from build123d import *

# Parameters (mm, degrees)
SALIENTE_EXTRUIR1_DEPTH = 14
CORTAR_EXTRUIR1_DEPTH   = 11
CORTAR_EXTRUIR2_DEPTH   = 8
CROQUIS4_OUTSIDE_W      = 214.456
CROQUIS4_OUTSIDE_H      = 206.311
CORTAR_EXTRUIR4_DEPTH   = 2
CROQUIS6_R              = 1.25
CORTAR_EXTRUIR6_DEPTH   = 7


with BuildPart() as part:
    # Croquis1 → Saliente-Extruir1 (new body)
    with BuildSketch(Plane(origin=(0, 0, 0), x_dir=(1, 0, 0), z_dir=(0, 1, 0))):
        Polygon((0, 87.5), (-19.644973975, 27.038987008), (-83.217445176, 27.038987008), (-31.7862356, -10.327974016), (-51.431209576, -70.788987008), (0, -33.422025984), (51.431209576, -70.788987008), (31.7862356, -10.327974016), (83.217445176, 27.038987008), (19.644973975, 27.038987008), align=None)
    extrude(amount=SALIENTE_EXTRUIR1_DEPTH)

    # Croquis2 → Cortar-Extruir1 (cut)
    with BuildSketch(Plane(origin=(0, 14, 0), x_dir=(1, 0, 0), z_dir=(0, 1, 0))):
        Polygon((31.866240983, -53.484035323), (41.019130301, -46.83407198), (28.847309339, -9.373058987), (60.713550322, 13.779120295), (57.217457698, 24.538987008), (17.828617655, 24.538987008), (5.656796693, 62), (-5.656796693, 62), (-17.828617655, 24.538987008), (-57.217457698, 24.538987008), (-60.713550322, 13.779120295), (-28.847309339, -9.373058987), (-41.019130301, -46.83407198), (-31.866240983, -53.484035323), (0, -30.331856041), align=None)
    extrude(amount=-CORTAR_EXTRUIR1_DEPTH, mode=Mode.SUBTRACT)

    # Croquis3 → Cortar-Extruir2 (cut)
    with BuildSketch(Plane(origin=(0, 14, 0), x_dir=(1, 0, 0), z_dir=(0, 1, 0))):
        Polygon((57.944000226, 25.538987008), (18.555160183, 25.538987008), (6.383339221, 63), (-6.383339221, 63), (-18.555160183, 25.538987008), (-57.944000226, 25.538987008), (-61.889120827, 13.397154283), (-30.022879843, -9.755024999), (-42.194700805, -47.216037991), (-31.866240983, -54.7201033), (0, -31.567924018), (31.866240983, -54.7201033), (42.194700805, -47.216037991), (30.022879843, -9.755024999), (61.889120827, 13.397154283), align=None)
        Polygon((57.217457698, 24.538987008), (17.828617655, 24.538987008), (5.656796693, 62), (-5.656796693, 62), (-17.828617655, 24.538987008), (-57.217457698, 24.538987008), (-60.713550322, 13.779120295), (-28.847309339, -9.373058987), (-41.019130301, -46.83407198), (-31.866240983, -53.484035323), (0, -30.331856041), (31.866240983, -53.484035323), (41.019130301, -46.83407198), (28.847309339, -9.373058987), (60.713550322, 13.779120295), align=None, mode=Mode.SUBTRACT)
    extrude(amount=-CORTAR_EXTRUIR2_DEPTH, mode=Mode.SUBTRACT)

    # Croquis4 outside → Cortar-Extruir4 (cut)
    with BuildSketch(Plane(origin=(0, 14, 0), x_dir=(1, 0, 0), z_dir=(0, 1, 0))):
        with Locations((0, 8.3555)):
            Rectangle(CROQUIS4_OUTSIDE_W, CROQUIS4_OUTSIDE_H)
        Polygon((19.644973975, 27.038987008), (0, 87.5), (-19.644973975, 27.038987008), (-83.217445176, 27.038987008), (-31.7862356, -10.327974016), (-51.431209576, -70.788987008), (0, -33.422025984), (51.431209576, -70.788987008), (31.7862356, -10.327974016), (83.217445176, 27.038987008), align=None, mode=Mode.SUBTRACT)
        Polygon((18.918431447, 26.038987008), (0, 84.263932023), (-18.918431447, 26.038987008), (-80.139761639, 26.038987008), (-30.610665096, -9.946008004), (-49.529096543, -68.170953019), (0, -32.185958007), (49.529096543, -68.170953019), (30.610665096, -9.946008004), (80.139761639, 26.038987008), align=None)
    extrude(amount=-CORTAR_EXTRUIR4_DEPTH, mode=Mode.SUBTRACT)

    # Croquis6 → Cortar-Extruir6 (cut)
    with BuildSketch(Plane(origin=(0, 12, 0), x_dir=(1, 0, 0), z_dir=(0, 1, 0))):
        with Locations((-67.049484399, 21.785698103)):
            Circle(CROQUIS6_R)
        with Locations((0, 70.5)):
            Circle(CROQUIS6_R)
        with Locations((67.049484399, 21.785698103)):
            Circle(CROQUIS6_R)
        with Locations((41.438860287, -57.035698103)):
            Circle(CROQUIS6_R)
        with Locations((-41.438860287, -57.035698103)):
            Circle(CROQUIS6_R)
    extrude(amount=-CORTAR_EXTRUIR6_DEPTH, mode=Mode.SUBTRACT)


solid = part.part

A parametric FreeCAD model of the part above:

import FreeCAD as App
import Part
import Sketcher
from FreeCAD import Vector
Q = App.Units.Quantity

doc = App.newDocument("Part")
body = doc.addObject("PartDesign::Body", "Body")

# Sketch on XZ plane
sketch1 = body.newObject("Sketcher::SketchObject", "Sketch")
sketch1.AttachmentSupport = (doc.getObject("XZ_Plane"), [""])
sketch1.MapMode = "FlatFace"
sketch1.addGeometry([
    Part.LineSegment(Vector(0, -87.5, 0), Vector(-19.644974, -27.038987, 0)),  # 0
    Part.LineSegment(Vector(-19.644974, -27.038987, 0), Vector(-83.217445, -27.038987, 0)),  # 1
    Part.LineSegment(Vector(-83.217445, -27.038987, 0), Vector(-31.786236, 10.327974, 0)),  # 2
    Part.LineSegment(Vector(-31.786236, 10.327974, 0), Vector(-51.43121, 70.788987, 0)),  # 3
    Part.LineSegment(Vector(-51.43121, 70.788987, 0), Vector(0, 33.422026, 0)),  # 4
    Part.LineSegment(Vector(0, 33.422026, 0), Vector(51.43121, 70.788987, 0)),  # 5
    Part.LineSegment(Vector(51.43121, 70.788987, 0), Vector(31.786236, 10.327974, 0)),  # 6
    Part.LineSegment(Vector(31.786236, 10.327974, 0), Vector(83.217445, -27.038987, 0)),  # 7
    Part.LineSegment(Vector(83.217445, -27.038987, 0), Vector(19.644974, -27.038987, 0)),  # 8
    Part.LineSegment(Vector(19.644974, -27.038987, 0), Vector(0, -87.5, 0)),  # 9
], False)
sketch1.addConstraint([
    Sketcher.Constraint("Coincident", 0, 2, 1, 1),
    Sketcher.Constraint("Coincident", 1, 2, 2, 1),
    Sketcher.Constraint("Coincident", 2, 2, 3, 1),
    Sketcher.Constraint("Coincident", 3, 2, 4, 1),
    Sketcher.Constraint("Coincident", 4, 2, 5, 1),
    Sketcher.Constraint("Coincident", 5, 2, 6, 1),
    Sketcher.Constraint("Coincident", 6, 2, 7, 1),
    Sketcher.Constraint("Coincident", 7, 2, 8, 1),
    Sketcher.Constraint("Coincident", 8, 2, 9, 1),
    Sketcher.Constraint("Coincident", 9, 2, 0, 1),
    Sketcher.Constraint("Horizontal", 1),
    Sketcher.Constraint("Horizontal", 8),
    Sketcher.Constraint("Symmetric", 3, 2, 5, 2, -2),
    Sketcher.Constraint("Symmetric", 2, 2, 6, 2, -2),
    Sketcher.Constraint("Symmetric", 1, 2, 7, 2, -2),
    Sketcher.Constraint("PointOnObject", 4, 2, -2),
    Sketcher.Constraint("PointOnObject", 9, 2, -2),
    Sketcher.Constraint("Parallel", 0, 3),
    Sketcher.Constraint("Parallel", 2, 5),
    Sketcher.Constraint("Parallel", 6, 9),
    Sketcher.Constraint("Equal", 0, 2),
    Sketcher.Constraint("Equal", 2, 3),
    Sketcher.Constraint("Equal", 3, 4),
    Sketcher.Constraint("Angle", 0, Q("108 deg")),
    Sketcher.Constraint("Angle", 2, Q("36 deg")),
    Sketcher.Constraint("DistanceY", 9, 2, -1, 1, Q("87.5 mm")),
    Sketcher.Constraint("DistanceX", 1, 2, 1, 1, Q("63.572471 mm")),
])
pad1 = body.newObject("PartDesign::Pad", "Pad")
pad1.Profile = sketch1
pad1.Length = 14
pad1.Reversed = True

# Sketch on XZ plane
sketch2 = body.newObject("Sketcher::SketchObject", "Sketch001")
sketch2.AttachmentSupport = (doc.getObject("XZ_Plane"), [""])
sketch2.MapMode = "FlatFace"
sketch2.AttachmentOffset = App.Placement(Vector(0, 0, -14), App.Rotation())
sketch2.addGeometry([
    Part.LineSegment(Vector(31.866241, 53.484035, 0), Vector(41.01913, 46.834072, 0)),  # 0
    Part.LineSegment(Vector(41.01913, 46.834072, 0), Vector(28.847309, 9.373059, 0)),  # 1
    Part.LineSegment(Vector(28.847309, 9.373059, 0), Vector(60.71355, -13.77912, 0)),  # 2
    Part.LineSegment(Vector(60.71355, -13.77912, 0), Vector(57.217458, -24.538987, 0)),  # 3
    Part.LineSegment(Vector(57.217458, -24.538987, 0), Vector(17.828618, -24.538987, 0)),  # 4
    Part.LineSegment(Vector(17.828618, -24.538987, 0), Vector(5.656797, -62, 0)),  # 5
    Part.LineSegment(Vector(5.656797, -62, 0), Vector(-5.656797, -62, 0)),  # 6
    Part.LineSegment(Vector(-5.656797, -62, 0), Vector(-17.828618, -24.538987, 0)),  # 7
    Part.LineSegment(Vector(-17.828618, -24.538987, 0), Vector(-57.217458, -24.538987, 0)),  # 8
    Part.LineSegment(Vector(-57.217458, -24.538987, 0), Vector(-60.71355, -13.77912, 0)),  # 9
    Part.LineSegment(Vector(-60.71355, -13.77912, 0), Vector(-28.847309, 9.373059, 0)),  # 10
    Part.LineSegment(Vector(-28.847309, 9.373059, 0), Vector(-41.01913, 46.834072, 0)),  # 11
    Part.LineSegment(Vector(-41.01913, 46.834072, 0), Vector(-31.866241, 53.484035, 0)),  # 12
    Part.LineSegment(Vector(-31.866241, 53.484035, 0), Vector(0, 30.331856, 0)),  # 13
    Part.LineSegment(Vector(0, 30.331856, 0), Vector(31.866241, 53.484035, 0)),  # 14
], False)
sketch2.addConstraint([
    Sketcher.Constraint("Coincident", 0, 2, 1, 1),
    Sketcher.Constraint("Coincident", 1, 2, 2, 1),
    Sketcher.Constraint("Coincident", 2, 2, 3, 1),
    Sketcher.Constraint("Coincident", 3, 2, 4, 1),
    Sketcher.Constraint("Coincident", 4, 2, 5, 1),
    Sketcher.Constraint("Coincident", 5, 2, 6, 1),
    Sketcher.Constraint("Coincident", 6, 2, 7, 1),
    Sketcher.Constraint("Coincident", 7, 2, 8, 1),
    Sketcher.Constraint("Coincident", 8, 2, 9, 1),
    Sketcher.Constraint("Coincident", 9, 2, 10, 1),
    Sketcher.Constraint("Coincident", 10, 2, 11, 1),
    Sketcher.Constraint("Coincident", 11, 2, 12, 1),
    Sketcher.Constraint("Coincident", 12, 2, 13, 1),
    Sketcher.Constraint("Coincident", 13, 2, 14, 1),
    Sketcher.Constraint("Coincident", 14, 2, 0, 1),
    Sketcher.Constraint("Horizontal", 4),
    Sketcher.Constraint("Horizontal", 6),
    Sketcher.Constraint("Horizontal", 8),
    Sketcher.Constraint("Symmetric", 4, 2, 7, 2, -2),
    Sketcher.Constraint("Symmetric", 2, 2, 9, 2, -2),
    Sketcher.Constraint("Symmetric", 1, 2, 10, 2, -2),
    Sketcher.Constraint("Symmetric", 0, 2, 11, 2, -2),
    Sketcher.Constraint("Symmetric", 12, 2, 14, 2, -2),
    Sketcher.Constraint("PointOnObject", 13, 2, -2),
    Sketcher.Constraint("Parallel", 0, 2),
    Sketcher.Constraint("Parallel", 1, 3),
    Sketcher.Constraint("Parallel", 3, 5),
    Sketcher.Constraint("Parallel", 7, 9),
    Sketcher.Constraint("Parallel", 9, 11),
    Sketcher.Constraint("Parallel", 2, 13),
    Sketcher.Constraint("Equal", 1, 2),
    Sketcher.Constraint("Equal", 0, 3),
    Sketcher.Constraint("Equal", 2, 5),
    Sketcher.Constraint("Equal", 11, 13),
    Sketcher.Constraint("Angle", 0, Q("-36 deg")),
    Sketcher.Constraint("Angle", 1, Q("-108 deg")),
    Sketcher.Constraint("DistanceY", 5, 2, -1, 1, Q("62 mm")),
    Sketcher.Constraint("DistanceX", 4, 2, 4, 1, Q("39.38884 mm")),
    Sketcher.Constraint("Distance", 1, Q("39.38884 mm")),
    Sketcher.Constraint("DistanceX", 6, 2, 6, 1, Q("11.313593 mm")),
])
pocket1 = body.newObject("PartDesign::Pocket", "Pocket")
pocket1.Profile = sketch2
pocket1.Length = 11
pocket1.Reversed = True

# Sketch on XZ plane
sketch3 = body.newObject("Sketcher::SketchObject", "Sketch002")
sketch3.AttachmentSupport = (doc.getObject("XZ_Plane"), [""])
sketch3.MapMode = "FlatFace"
sketch3.AttachmentOffset = App.Placement(Vector(0, 0, -14), App.Rotation())
sketch3.addGeometry([
    Part.LineSegment(Vector(57.944, -25.538987, 0), Vector(18.55516, -25.538987, 0)),  # 0
    Part.LineSegment(Vector(18.55516, -25.538987, 0), Vector(6.383339, -63, 0)),  # 1
    Part.LineSegment(Vector(6.383339, -63, 0), Vector(-6.383339, -63, 0)),  # 2
    Part.LineSegment(Vector(-6.383339, -63, 0), Vector(-18.55516, -25.538987, 0)),  # 3
    Part.LineSegment(Vector(-18.55516, -25.538987, 0), Vector(-57.944, -25.538987, 0)),  # 4
    Part.LineSegment(Vector(-57.944, -25.538987, 0), Vector(-61.889121, -13.397154, 0)),  # 5
    Part.LineSegment(Vector(-61.889121, -13.397154, 0), Vector(-30.02288, 9.755025, 0)),  # 6
    Part.LineSegment(Vector(-30.02288, 9.755025, 0), Vector(-42.194701, 47.216038, 0)),  # 7
    Part.LineSegment(Vector(-42.194701, 47.216038, 0), Vector(-31.866241, 54.720103, 0)),  # 8
    Part.LineSegment(Vector(-31.866241, 54.720103, 0), Vector(0, 31.567924, 0)),  # 9
    Part.LineSegment(Vector(0, 31.567924, 0), Vector(31.866241, 54.720103, 0)),  # 10
    Part.LineSegment(Vector(31.866241, 54.720103, 0), Vector(42.194701, 47.216038, 0)),  # 11
    Part.LineSegment(Vector(42.194701, 47.216038, 0), Vector(30.02288, 9.755025, 0)),  # 12
    Part.LineSegment(Vector(30.02288, 9.755025, 0), Vector(61.889121, -13.397154, 0)),  # 13
    Part.LineSegment(Vector(61.889121, -13.397154, 0), Vector(57.944, -25.538987, 0)),  # 14
    Part.LineSegment(Vector(17.828618, -24.538987, 0), Vector(57.217458, -24.538987, 0)),  # 15
    Part.LineSegment(Vector(57.217458, -24.538987, 0), Vector(60.71355, -13.77912, 0)),  # 16
    Part.LineSegment(Vector(60.71355, -13.77912, 0), Vector(28.847309, 9.373059, 0)),  # 17
    Part.LineSegment(Vector(28.847309, 9.373059, 0), Vector(41.01913, 46.834072, 0)),  # 18
    Part.LineSegment(Vector(41.01913, 46.834072, 0), Vector(31.866241, 53.484035, 0)),  # 19
    Part.LineSegment(Vector(31.866241, 53.484035, 0), Vector(0, 30.331856, 0)),  # 20
    Part.LineSegment(Vector(0, 30.331856, 0), Vector(-31.866241, 53.484035, 0)),  # 21
    Part.LineSegment(Vector(-31.866241, 53.484035, 0), Vector(-41.01913, 46.834072, 0)),  # 22
    Part.LineSegment(Vector(-41.01913, 46.834072, 0), Vector(-28.847309, 9.373059, 0)),  # 23
    Part.LineSegment(Vector(-28.847309, 9.373059, 0), Vector(-60.71355, -13.77912, 0)),  # 24
    Part.LineSegment(Vector(-60.71355, -13.77912, 0), Vector(-57.217458, -24.538987, 0)),  # 25
    Part.LineSegment(Vector(-57.217458, -24.538987, 0), Vector(-17.828618, -24.538987, 0)),  # 26
    Part.LineSegment(Vector(-17.828618, -24.538987, 0), Vector(-5.656797, -62, 0)),  # 27
    Part.LineSegment(Vector(-5.656797, -62, 0), Vector(5.656797, -62, 0)),  # 28
    Part.LineSegment(Vector(5.656797, -62, 0), Vector(17.828618, -24.538987, 0)),  # 29
], False)
sketch3.addConstraint([
    Sketcher.Constraint("Coincident", 0, 2, 1, 1),
    Sketcher.Constraint("Coincident", 1, 2, 2, 1),
    Sketcher.Constraint("Coincident", 2, 2, 3, 1),
    Sketcher.Constraint("Coincident", 3, 2, 4, 1),
    Sketcher.Constraint("Coincident", 4, 2, 5, 1),
    Sketcher.Constraint("Coincident", 5, 2, 6, 1),
    Sketcher.Constraint("Coincident", 6, 2, 7, 1),
    Sketcher.Constraint("Coincident", 7, 2, 8, 1),
    Sketcher.Constraint("Coincident", 8, 2, 9, 1),
    Sketcher.Constraint("Coincident", 9, 2, 10, 1),
    Sketcher.Constraint("Coincident", 10, 2, 11, 1),
    Sketcher.Constraint("Coincident", 11, 2, 12, 1),
    Sketcher.Constraint("Coincident", 12, 2, 13, 1),
    Sketcher.Constraint("Coincident", 13, 2, 14, 1),
    Sketcher.Constraint("Coincident", 14, 2, 0, 1),
    Sketcher.Constraint("Coincident", 15, 2, 16, 1),
    Sketcher.Constraint("Coincident", 16, 2, 17, 1),
    Sketcher.Constraint("Coincident", 17, 2, 18, 1),
    Sketcher.Constraint("Coincident", 18, 2, 19, 1),
    Sketcher.Constraint("Coincident", 19, 2, 20, 1),
    Sketcher.Constraint("Coincident", 20, 2, 21, 1),
    Sketcher.Constraint("Coincident", 21, 2, 22, 1),
    Sketcher.Constraint("Coincident", 22, 2, 23, 1),
    Sketcher.Constraint("Coincident", 23, 2, 24, 1),
    Sketcher.Constraint("Coincident", 24, 2, 25, 1),
    Sketcher.Constraint("Coincident", 25, 2, 26, 1),
    Sketcher.Constraint("Coincident", 26, 2, 27, 1),
    Sketcher.Constraint("Coincident", 27, 2, 28, 1),
    Sketcher.Constraint("Coincident", 28, 2, 29, 1),
    Sketcher.Constraint("Coincident", 29, 2, 15, 1),
    Sketcher.Constraint("Horizontal", 0),
    Sketcher.Constraint("Horizontal", 2),
    Sketcher.Constraint("Horizontal", 4),
    Sketcher.Constraint("Horizontal", 15),
    Sketcher.Constraint("Horizontal", 26),
    Sketcher.Constraint("Horizontal", 28),
    Sketcher.Constraint("Symmetric", 0, 2, 3, 2, -2),
    Sketcher.Constraint("Symmetric", 8, 2, 10, 2, -2),
    Sketcher.Constraint("Symmetric", 7, 2, 11, 2, -2),
    Sketcher.Constraint("Symmetric", 6, 2, 12, 2, -2),
    Sketcher.Constraint("Symmetric", 5, 2, 13, 2, -2),
    Sketcher.Constraint("Symmetric", 19, 2, 21, 2, -2),
    Sketcher.Constraint("Symmetric", 18, 2, 22, 2, -2),
    Sketcher.Constraint("Symmetric", 17, 2, 23, 2, -2),
    Sketcher.Constraint("Symmetric", 16, 2, 24, 2, -2),
    Sketcher.Constraint("Symmetric", 15, 2, 25, 2, -2),
    Sketcher.Constraint("PointOnObject", 9, 2, -2),
    Sketcher.Constraint("PointOnObject", 20, 2, -2),
    Sketcher.Constraint("Parallel", 3, 5),
    Sketcher.Constraint("Parallel", 5, 7),
    Sketcher.Constraint("Parallel", 6, 8),
    Sketcher.Constraint("Parallel", 8, 10),
    Sketcher.Constraint("Parallel", 1, 12),
    Sketcher.Constraint("Parallel", 12, 14),
    Sketcher.Constraint("Parallel", 14, 16),
    Sketcher.Constraint("Parallel", 13, 17),
    Sketcher.Constraint("Parallel", 16, 18),
    Sketcher.Constraint("Parallel", 17, 19),
    Sketcher.Constraint("Parallel", 10, 20),
    Sketcher.Constraint("Parallel", 25, 27),
    Sketcher.Constraint("Parallel", 18, 29),
    Sketcher.Constraint("Vertical", 10, 2, 19, 2),
    Sketcher.Constraint("Equal", 4, 15),
    Sketcher.Constraint("Equal", 15, 26),
    Sketcher.Constraint("Equal", 3, 6),
    Sketcher.Constraint("Equal", 6, 7),
    Sketcher.Constraint("Equal", 5, 8),
    Sketcher.Constraint("Equal", 7, 9),
    Sketcher.Constraint("Equal", 13, 17),
    Sketcher.Constraint("Equal", 17, 18),
    Sketcher.Constraint("Equal", 16, 19),
    Sketcher.Constraint("Equal", 24, 27),
    Sketcher.Constraint("Angle", 1, Q("-108 deg")),
    Sketcher.Constraint("Angle", 6, Q("36 deg")),
    Sketcher.Constraint("DistanceY", 1, 2, -1, 1, Q("63 mm")),
    Sketcher.Constraint("DistanceY", 27, 2, -1, 1, Q("62 mm")),
    Sketcher.Constraint("DistanceX", 4, 2, -1, 1, Q("57.944 mm")),
    Sketcher.Constraint("DistanceX", 0, 2, 0, 1, Q("39.38884 mm")),
    Sketcher.Constraint("DistanceX", 2, 2, 2, 1, Q("12.766678 mm")),
    Sketcher.Constraint("DistanceX", 28, 1, 28, 2, Q("11.313593 mm")),
])
pocket2 = body.newObject("PartDesign::Pocket", "Pocket001")
pocket2.Profile = sketch3
pocket2.Length = 8
pocket2.Reversed = True

# Sketch on XZ plane
sketch4 = body.newObject("Sketcher::SketchObject", "Sketch003")
sketch4.AttachmentSupport = (doc.getObject("XZ_Plane"), [""])
sketch4.MapMode = "FlatFace"
sketch4.AttachmentOffset = App.Placement(Vector(0, 0, -14), App.Rotation())
sketch4.addGeometry([
    Part.LineSegment(Vector(-107.228, -111.511, 0), Vector(-107.228, 94.8, 0)),  # 0
    Part.LineSegment(Vector(-107.228, 94.8, 0), Vector(107.228, 94.8, 0)),  # 1
    Part.LineSegment(Vector(107.228, 94.8, 0), Vector(107.228, -111.511, 0)),  # 2
    Part.LineSegment(Vector(107.228, -111.511, 0), Vector(-107.228, -111.511, 0)),  # 3
    Part.LineSegment(Vector(0, -87.5, 0), Vector(19.644974, -27.038987, 0)),  # 4
    Part.LineSegment(Vector(19.644974, -27.038987, 0), Vector(83.217445, -27.038987, 0)),  # 5
    Part.LineSegment(Vector(83.217445, -27.038987, 0), Vector(31.786236, 10.327974, 0)),  # 6
    Part.LineSegment(Vector(31.786236, 10.327974, 0), Vector(51.43121, 70.788987, 0)),  # 7
    Part.LineSegment(Vector(51.43121, 70.788987, 0), Vector(0, 33.422026, 0)),  # 8
    Part.LineSegment(Vector(0, 33.422026, 0), Vector(-51.43121, 70.788987, 0)),  # 9
    Part.LineSegment(Vector(-51.43121, 70.788987, 0), Vector(-31.786236, 10.327974, 0)),  # 10
    Part.LineSegment(Vector(-31.786236, 10.327974, 0), Vector(-83.217445, -27.038987, 0)),  # 11
    Part.LineSegment(Vector(-83.217445, -27.038987, 0), Vector(-19.644974, -27.038987, 0)),  # 12
    Part.LineSegment(Vector(-19.644974, -27.038987, 0), Vector(0, -87.5, 0)),  # 13
    Part.LineSegment(Vector(18.918431, -26.038987, 0), Vector(0, -84.263932, 0)),  # 14
    Part.LineSegment(Vector(0, -84.263932, 0), Vector(-18.918431, -26.038987, 0)),  # 15
    Part.LineSegment(Vector(-18.918431, -26.038987, 0), Vector(-80.139762, -26.038987, 0)),  # 16
    Part.LineSegment(Vector(-80.139762, -26.038987, 0), Vector(-30.610665, 9.946008, 0)),  # 17
    Part.LineSegment(Vector(-30.610665, 9.946008, 0), Vector(-49.529097, 68.170953, 0)),  # 18
    Part.LineSegment(Vector(-49.529097, 68.170953, 0), Vector(0, 32.185958, 0)),  # 19
    Part.LineSegment(Vector(0, 32.185958, 0), Vector(49.529097, 68.170953, 0)),  # 20
    Part.LineSegment(Vector(49.529097, 68.170953, 0), Vector(30.610665, 9.946008, 0)),  # 21
    Part.LineSegment(Vector(30.610665, 9.946008, 0), Vector(80.139762, -26.038987, 0)),  # 22
    Part.LineSegment(Vector(80.139762, -26.038987, 0), Vector(18.918431, -26.038987, 0)),  # 23
], False)
sketch4.addConstraint([
    Sketcher.Constraint("Coincident", 0, 2, 1, 1),
    Sketcher.Constraint("Coincident", 1, 2, 2, 1),
    Sketcher.Constraint("Coincident", 2, 2, 3, 1),
    Sketcher.Constraint("Coincident", 3, 2, 0, 1),
    Sketcher.Constraint("Coincident", 4, 2, 5, 1),
    Sketcher.Constraint("Coincident", 5, 2, 6, 1),
    Sketcher.Constraint("Coincident", 6, 2, 7, 1),
    Sketcher.Constraint("Coincident", 7, 2, 8, 1),
    Sketcher.Constraint("Coincident", 8, 2, 9, 1),
    Sketcher.Constraint("Coincident", 9, 2, 10, 1),
    Sketcher.Constraint("Coincident", 10, 2, 11, 1),
    Sketcher.Constraint("Coincident", 11, 2, 12, 1),
    Sketcher.Constraint("Coincident", 12, 2, 13, 1),
    Sketcher.Constraint("Coincident", 13, 2, 4, 1),
    Sketcher.Constraint("Coincident", 14, 2, 15, 1),
    Sketcher.Constraint("Coincident", 15, 2, 16, 1),
    Sketcher.Constraint("Coincident", 16, 2, 17, 1),
    Sketcher.Constraint("Coincident", 17, 2, 18, 1),
    Sketcher.Constraint("Coincident", 18, 2, 19, 1),
    Sketcher.Constraint("Coincident", 19, 2, 20, 1),
    Sketcher.Constraint("Coincident", 20, 2, 21, 1),
    Sketcher.Constraint("Coincident", 21, 2, 22, 1),
    Sketcher.Constraint("Coincident", 22, 2, 23, 1),
    Sketcher.Constraint("Coincident", 23, 2, 14, 1),
    Sketcher.Constraint("Vertical", 0),
    Sketcher.Constraint("Horizontal", 1),
    Sketcher.Constraint("Vertical", 2),
    Sketcher.Constraint("Horizontal", 3),
    Sketcher.Constraint("Horizontal", 5),
    Sketcher.Constraint("Horizontal", 12),
    Sketcher.Constraint("Horizontal", 16),
    Sketcher.Constraint("Horizontal", 23),
    Sketcher.Constraint("Symmetric", 7, 2, 9, 2, -2),
    Sketcher.Constraint("Symmetric", 6, 2, 10, 2, -2),
    Sketcher.Constraint("Symmetric", 5, 2, 11, 2, -2),
    Sketcher.Constraint("Symmetric", 18, 2, 20, 2, -2),
    Sketcher.Constraint("Symmetric", 17, 2, 21, 2, -2),
    Sketcher.Constraint("Symmetric", 16, 2, 22, 2, -2),
    Sketcher.Constraint("PointOnObject", 8, 2, -2),
    Sketcher.Constraint("PointOnObject", 13, 2, -2),
    Sketcher.Constraint("PointOnObject", 14, 2, -2),
    Sketcher.Constraint("PointOnObject", 19, 2, -2),
    Sketcher.Constraint("Parallel", 4, 7),
    Sketcher.Constraint("Parallel", 6, 9),
    Sketcher.Constraint("Parallel", 10, 13),
    Sketcher.Constraint("Parallel", 7, 14),
    Sketcher.Constraint("Parallel", 13, 15),
    Sketcher.Constraint("Parallel", 11, 17),
    Sketcher.Constraint("Parallel", 15, 18),
    Sketcher.Constraint("Parallel", 9, 19),
    Sketcher.Constraint("Equal", 4, 6),
    Sketcher.Constraint("Equal", 6, 7),
    Sketcher.Constraint("Equal", 7, 8),
    Sketcher.Constraint("Equal", 15, 17),
    Sketcher.Constraint("Equal", 17, 18),
    Sketcher.Constraint("Equal", 18, 19),
    Sketcher.Constraint("Angle", 4, Q("72 deg")),
    Sketcher.Constraint("Angle", 6, Q("144 deg")),
    Sketcher.Constraint("DistanceY", 12, 2, 15, 2, Q("1 mm")),
    Sketcher.Constraint("DistanceY", -1, 1, 0, 2, Q("94.8 mm")),
    Sketcher.Constraint("DistanceY", 13, 2, -1, 1, Q("87.5 mm")),
    Sketcher.Constraint("DistanceX", 1, 1, 1, 2, Q("214.456 mm")),
    Sketcher.Constraint("DistanceY", 0, 1, 0, 2, Q("206.311 mm")),
    Sketcher.Constraint("DistanceX", 0, 2, -1, 1, Q("107.228 mm")),
    Sketcher.Constraint("DistanceX", 5, 1, 5, 2, Q("63.572471 mm")),
    Sketcher.Constraint("DistanceX", 16, 2, 16, 1, Q("61.22133 mm")),
])
pocket3 = body.newObject("PartDesign::Pocket", "Pocket002")
pocket3.Profile = sketch4
pocket3.Length = 2
pocket3.Reversed = True

# Sketch on XZ plane
sketch5 = body.newObject("Sketcher::SketchObject", "Sketch004")
sketch5.AttachmentSupport = (doc.getObject("XZ_Plane"), [""])
sketch5.MapMode = "FlatFace"
sketch5.AttachmentOffset = App.Placement(Vector(0, 0, -12), App.Rotation())
sketch5.addGeometry([
    Part.Circle(Vector(-67.049484, -21.785698, 0), Vector(0, 0, 1), 1.25),  # 0
    Part.Circle(Vector(0, -70.5, 0), Vector(0, 0, 1), 1.25),  # 1
    Part.Circle(Vector(67.049484, -21.785698, 0), Vector(0, 0, 1), 1.25),  # 2
    Part.Circle(Vector(41.43886, 57.035698, 0), Vector(0, 0, 1), 1.25),  # 3
    Part.Circle(Vector(-41.43886, 57.035698, 0), Vector(0, 0, 1), 1.25),  # 4
], False)
sketch5.addConstraint([
    Sketcher.Constraint("Equal", 0, 1),
    Sketcher.Constraint("Equal", 1, 2),
    Sketcher.Constraint("Equal", 2, 3),
    Sketcher.Constraint("Equal", 3, 4),
    Sketcher.Constraint("Symmetric", 0, 3, 2, 3, -2),
    Sketcher.Constraint("Symmetric", 3, 3, 4, 3, -2),
    Sketcher.Constraint("PointOnObject", 1, 3, -2),
    Sketcher.Constraint("Diameter", 0, Q("2.5 mm")),
    Sketcher.Constraint("DistanceY", 1, 3, -1, 1, Q("70.5 mm")),
    Sketcher.Constraint("DistanceY", 0, 3, -1, 1, Q("21.785698 mm")),
    Sketcher.Constraint("DistanceY", -1, 1, 3, 3, Q("57.035698 mm")),
    Sketcher.Constraint("DistanceX", -1, 1, 3, 3, Q("41.43886 mm")),
    Sketcher.Constraint("DistanceX", 0, 3, 2, 3, Q("134.098969 mm")),
])
pocket4 = body.newObject("PartDesign::Pocket", "Pocket003")
pocket4.Profile = sketch5
pocket4.Length = 7
pocket4.Reversed = True

doc.recompute()
